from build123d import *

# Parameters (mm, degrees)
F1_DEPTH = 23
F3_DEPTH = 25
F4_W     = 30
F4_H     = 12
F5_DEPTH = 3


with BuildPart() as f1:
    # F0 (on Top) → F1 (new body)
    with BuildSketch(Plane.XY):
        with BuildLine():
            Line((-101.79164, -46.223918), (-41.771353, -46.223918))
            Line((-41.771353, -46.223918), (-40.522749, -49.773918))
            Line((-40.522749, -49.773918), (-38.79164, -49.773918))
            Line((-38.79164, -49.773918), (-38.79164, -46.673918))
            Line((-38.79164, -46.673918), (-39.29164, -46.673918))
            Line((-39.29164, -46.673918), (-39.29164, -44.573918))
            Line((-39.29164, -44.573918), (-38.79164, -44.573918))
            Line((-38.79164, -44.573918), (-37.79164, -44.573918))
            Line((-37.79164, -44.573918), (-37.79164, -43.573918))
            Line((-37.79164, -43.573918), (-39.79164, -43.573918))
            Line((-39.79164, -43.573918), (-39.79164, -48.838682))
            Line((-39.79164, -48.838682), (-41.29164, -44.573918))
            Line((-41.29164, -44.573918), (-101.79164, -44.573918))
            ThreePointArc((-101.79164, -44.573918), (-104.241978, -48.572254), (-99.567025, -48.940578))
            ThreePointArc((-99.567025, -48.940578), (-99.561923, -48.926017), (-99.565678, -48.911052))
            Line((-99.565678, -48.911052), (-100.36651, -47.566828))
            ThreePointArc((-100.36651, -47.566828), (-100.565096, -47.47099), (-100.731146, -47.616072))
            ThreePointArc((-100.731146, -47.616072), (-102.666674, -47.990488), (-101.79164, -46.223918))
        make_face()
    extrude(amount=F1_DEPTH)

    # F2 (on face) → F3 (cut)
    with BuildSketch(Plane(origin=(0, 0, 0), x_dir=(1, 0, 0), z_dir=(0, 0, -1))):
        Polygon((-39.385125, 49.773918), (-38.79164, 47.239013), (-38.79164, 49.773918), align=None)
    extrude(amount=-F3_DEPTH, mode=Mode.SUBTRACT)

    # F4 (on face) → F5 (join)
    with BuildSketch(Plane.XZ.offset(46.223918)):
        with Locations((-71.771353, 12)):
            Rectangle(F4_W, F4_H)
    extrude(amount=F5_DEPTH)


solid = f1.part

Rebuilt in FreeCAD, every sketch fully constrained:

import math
import FreeCAD as App
import Part
import Sketcher
from FreeCAD import Vector

doc = App.newDocument("Part")
body = doc.addObject("PartDesign::Body", "Body")

# Sketch on XY plane
sketch1 = doc.addObject("Sketcher::SketchObject", "Sketch")
body.addObject(sketch1)
sketch1.AttachmentSupport = (doc.XY_Plane, [""])
sketch1.MapMode = "FlatFace"
sketch1.addGeometry([
    Part.LineSegment(Vector(-101.792, -46.224, 0), Vector(-41.771, -46.224, 0)),  # 0
    Part.LineSegment(Vector(-41.771, -46.224, 0), Vector(-40.523, -49.774, 0)),  # 1
    Part.LineSegment(Vector(-40.523, -49.774, 0), Vector(-38.792, -49.774, 0)),  # 2
    Part.LineSegment(Vector(-38.792, -49.774, 0), Vector(-38.792, -46.674, 0)),  # 3
    Part.LineSegment(Vector(-38.792, -46.674, 0), Vector(-39.292, -46.674, 0)),  # 4
    Part.LineSegment(Vector(-39.292, -46.674, 0), Vector(-39.292, -44.574, 0)),  # 5
    Part.LineSegment(Vector(-39.292, -44.574, 0), Vector(-37.792, -44.574, 0)),  # 6
    Part.LineSegment(Vector(-37.792, -44.574, 0), Vector(-37.792, -43.574, 0)),  # 7
    Part.LineSegment(Vector(-37.792, -43.574, 0), Vector(-39.792, -43.574, 0)),  # 8
    Part.LineSegment(Vector(-39.792, -43.574, 0), Vector(-39.792, -48.839, 0)),  # 9
    Part.LineSegment(Vector(-39.792, -48.839, 0), Vector(-41.292, -44.574, 0)),  # 10
    Part.LineSegment(Vector(-41.292, -44.574, 0), Vector(-101.792, -44.574, 0)),  # 11
    Part.ArcOfCircle(Part.Circle(Vector(-101.792, -47.324, 0), Vector(0, 0, 1), 2.75), math.radians(90), math.radians(324)),  # 12
    Part.ArcOfCircle(Part.Circle(Vector(-99.589, -48.925, 0), Vector(0, 0, 1), 0.027), math.radians(-36), math.radians(31)),  # 13
    Part.LineSegment(Vector(-99.566, -48.911, 0), Vector(-100.367, -47.567, 0)),  # 14
    Part.ArcOfCircle(Part.Circle(Vector(-100.538, -47.669, 0), Vector(0, 0, 1), 0.2), math.radians(31), math.radians(165)),  # 15
    Part.ArcOfCircle(Part.Circle(Vector(-101.792, -47.324, 0), Vector(0, 0, 1), 1.1), math.radians(90), math.radians(345)),  # 16
], False)
sketch1.addConstraint([
    Sketcher.Constraint("Coincident", 0, 2, 1, 1),
    Sketcher.Constraint("Coincident", 1, 2, 2, 1),
    Sketcher.Constraint("Coincident", 2, 2, 3, 1),
    Sketcher.Constraint("Coincident", 3, 2, 4, 1),
    Sketcher.Constraint("Coincident", 4, 2, 5, 1),
    Sketcher.Constraint("Coincident", 5, 2, 6, 1),
    Sketcher.Constraint("Coincident", 6, 2, 7, 1),
    Sketcher.Constraint("Coincident", 7, 2, 8, 1),
    Sketcher.Constraint("Coincident", 8, 2, 9, 1),
    Sketcher.Constraint("Coincident", 9, 2, 10, 1),
    Sketcher.Constraint("Coincident", 10, 2, 11, 1),
    Sketcher.Constraint("Tangent", 11, 2, 12, 1),
    Sketcher.Constraint("Coincident", 12, 2, 13, 1),
    Sketcher.Constraint("Coincident", 13, 2, 14, 1),
    Sketcher.Constraint("Tangent", 14, 2, 15, 1),
    Sketcher.Constraint("Tangent", 15, 2, 16, 2),
    Sketcher.Constraint("Tangent", 16, 1, 0, 1),
    Sketcher.Constraint("Horizontal", 0),
    Sketcher.Constraint("Horizontal", 2),
    Sketcher.Constraint("Vertical", 3),
    Sketcher.Constraint("Horizontal", 4),
    Sketcher.Constraint("Vertical", 5),
    Sketcher.Constraint("Horizontal", 6),
    Sketcher.Constraint("Vertical", 7),
    Sketcher.Constraint("Horizontal", 8),
    Sketcher.Constraint("Vertical", 9),
    Sketcher.Constraint("Horizontal", 11),
    Sketcher.Constraint("Coincident", 16, 3, 12, 3),
    Sketcher.Constraint("Parallel", 1, 10),
    Sketcher.Constraint("Horizontal", 6, 2, 10, 2),
    Sketcher.Constraint("Radius", 15, 0.2),
    Sketcher.Constraint("Radius", 16, 1.1),
    Sketcher.Constraint("DistanceX", 8, 2, 8, 1, 2.0),
    Sketcher.Constraint("DistanceY", 7, 1, 7, 2, 1.0),
    Sketcher.Constraint("Radius", 12, 2.75),
    Sketcher.Constraint("DistanceX", 4, 2, 4, 1, 0.5),
    Sketcher.Constraint("DistanceX", 6, 1, 6, 2, 1.5),
    Sketcher.Constraint("DistanceX", 11, 2, 11, 1, 60.5),
    Sketcher.Constraint("DistanceY", 3, 1, 3, 2, 3.1),
    Sketcher.Constraint("DistanceY", 5, 1, 5, 2, 2.1),
    Sketcher.Constraint("DistanceX", 16, 3, 2, 2, 63.0),
    Sketcher.Constraint("Radius", 13, 0.026849),
    Sketcher.Constraint("DistanceX", 2, 1, 2, 2, 1.731109),
    Sketcher.Constraint("DistanceX", 15, 2, 13, 3, 1.142402),
    Sketcher.Constraint("Distance", 1, 3.763178),
    Sketcher.Constraint("DistanceX", 12, 3, -1, 1, 101.79164),
    Sketcher.Constraint("DistanceY", 12, 3, -1, 1, 47.323918),
    Sketcher.Constraint("DistanceX", 15, 3, -1, 1, 100.538329),
    Sketcher.Constraint("DistanceX", 13, 2, -1, 1, 99.565678),
    Sketcher.Constraint("DistanceX", 13, 3, 12, 2, 0.021719),
])
pad1 = doc.addObject("PartDesign::Pad", "Pad")
body.addObject(pad1)
pad1.Profile = sketch1
pad1.Length = 23

# Sketch on XY plane
sketch2 = doc.addObject("Sketcher::SketchObject", "Sketch001")
body.addObject(sketch2)
sketch2.AttachmentSupport = (doc.XY_Plane, [""])
sketch2.MapMode = "FlatFace"
sketch2.addGeometry([
    Part.LineSegment(Vector(-39.4, -49.8, 0), Vector(-38.8, -47.2, 0)),
    Part.LineSegment(Vector(-38.8, -47.2, 0), Vector(-38.8, -49.8, 0)),
    Part.LineSegment(Vector(-38.8, -49.8, 0), Vector(-39.4, -49.8, 0)),
], False)
sketch2.addConstraint([
    Sketcher.Constraint("Coincident", 0, 2, 1, 1),
    Sketcher.Constraint("Coincident", 1, 2, 2, 1),
    Sketcher.Constraint("Coincident", 2, 2, 0, 1),
    Sketcher.Constraint("Vertical", 1),
    Sketcher.Constraint("Horizontal", 2),
    Sketcher.Constraint("DistanceX", 2, 2, 2, 1, 0.593485),
    Sketcher.Constraint("DistanceY", 1, 2, 1, 1, 2.534905),
    Sketcher.Constraint("DistanceX", 0, 2, -1, 1, 38.79164),
    Sketcher.Constraint("DistanceY", 1, 2, -1, 1, 49.773918),
])
pocket1 = doc.addObject("PartDesign::Pocket", "Pocket")
body.addObject(pocket1)
pocket1.Profile = sketch2
pocket1.Length = 25
pocket1.Reversed = True

# Sketch on XZ plane
sketch3 = doc.addObject("Sketcher::SketchObject", "Sketch002")
body.addObject(sketch3)
sketch3.AttachmentSupport = (doc.XZ_Plane, [""])
sketch3.MapMode = "FlatFace"
sketch3.AttachmentOffset = App.Placement(Vector(0, 0, 46.223918), App.Rotation())
sketch3.addGeometry([
    Part.LineSegment(Vector(-87, 18, 0), Vector(-87, 6, 0)),
    Part.LineSegment(Vector(-87, 6, 0), Vector(-57, 6, 0)),
    Part.LineSegment(Vector(-57, 6, 0), Vector(-57, 18, 0)),
    Part.LineSegment(Vector(-57, 18, 0), Vector(-87, 18, 0)),
], False)
sketch3.addConstraint([
    Sketcher.Constraint("Coincident", 0, 2, 1, 1),
    Sketcher.Constraint("Coincident", 1, 2, 2, 1),
    Sketcher.Constraint("Coincident", 2, 2, 3, 1),
    Sketcher.Constraint("Coincident", 3, 2, 0, 1),
    Sketcher.Constraint("Vertical", 0),
    Sketcher.Constraint("Horizontal", 1),
    Sketcher.Constraint("Vertical", 2),
    Sketcher.Constraint("Horizontal", 3),
    Sketcher.Constraint("DistanceX", 1, 1, 1, 2, 30.0),
    Sketcher.Constraint("DistanceY", 0, 2, 0, 1, 12.0),
    Sketcher.Constraint("DistanceY", -1, 1, 0, 2, 6.0),
    Sketcher.Constraint("DistanceX", 0, 2, -1, 1, 86.771353),
])
pad2 = doc.addObject("PartDesign::Pad", "Pad001")
body.addObject(pad2)
pad2.Profile = sketch3
pad2.Length = 3

doc.recompute()
